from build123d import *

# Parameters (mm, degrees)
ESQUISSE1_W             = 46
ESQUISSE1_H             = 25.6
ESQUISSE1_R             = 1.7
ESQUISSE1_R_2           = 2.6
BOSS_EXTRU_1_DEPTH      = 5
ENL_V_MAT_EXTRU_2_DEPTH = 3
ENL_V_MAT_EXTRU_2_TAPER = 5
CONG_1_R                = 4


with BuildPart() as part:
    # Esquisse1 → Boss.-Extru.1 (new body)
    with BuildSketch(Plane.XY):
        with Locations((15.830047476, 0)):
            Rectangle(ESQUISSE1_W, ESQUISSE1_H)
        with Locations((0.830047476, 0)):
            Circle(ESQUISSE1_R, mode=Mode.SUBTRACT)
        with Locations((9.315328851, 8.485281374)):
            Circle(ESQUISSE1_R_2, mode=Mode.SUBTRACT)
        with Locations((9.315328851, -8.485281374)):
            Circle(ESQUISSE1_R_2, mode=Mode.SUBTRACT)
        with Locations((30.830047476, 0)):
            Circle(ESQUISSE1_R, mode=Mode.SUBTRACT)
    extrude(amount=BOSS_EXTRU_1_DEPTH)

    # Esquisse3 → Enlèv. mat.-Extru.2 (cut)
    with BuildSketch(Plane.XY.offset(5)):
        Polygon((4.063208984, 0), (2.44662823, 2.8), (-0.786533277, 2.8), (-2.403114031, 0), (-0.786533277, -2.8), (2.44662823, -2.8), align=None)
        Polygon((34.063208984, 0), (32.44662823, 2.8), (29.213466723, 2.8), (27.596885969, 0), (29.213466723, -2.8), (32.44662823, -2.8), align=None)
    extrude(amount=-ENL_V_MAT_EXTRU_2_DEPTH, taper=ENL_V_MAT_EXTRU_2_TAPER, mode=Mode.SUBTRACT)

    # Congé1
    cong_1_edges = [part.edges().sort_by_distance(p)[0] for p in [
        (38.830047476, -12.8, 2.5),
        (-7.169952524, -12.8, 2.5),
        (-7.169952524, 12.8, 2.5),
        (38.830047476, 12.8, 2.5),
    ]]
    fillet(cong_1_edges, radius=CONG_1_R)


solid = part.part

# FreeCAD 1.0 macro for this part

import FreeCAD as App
import Part
import Sketcher
from FreeCAD import Vector
Q = App.Units.Quantity


def edges_at(feature, points):
    """Names of the edges that pass closest to the given points."""
    edges = feature.Shape.Edges
    near = lambda p: min(range(len(edges)), key=lambda i: edges[i].distToShape(Part.Vertex(*p))[0])
    return sorted({f"Edge{near(p) + 1}" for p in points})

doc = App.newDocument("Part")
body = doc.addObject("PartDesign::Body", "Body")

sketch1 = body.newObject("Sketcher::SketchObject", "Sketch")
sketch1.AttachmentSupport = (doc.getObject("XY_Plane"), [""])
sketch1.MapMode = "FlatFace"
sketch1.addGeometry([
    Part.LineSegment(Vector(-7.2, 12.8, 0), Vector(-7.2, -12.8, 0)),
    Part.LineSegment(Vector(-7.2, -12.8, 0), Vector(38.8, -12.8, 0)),
    Part.LineSegment(Vector(38.8, -12.8, 0), Vector(38.8, 12.8, 0)),
    Part.LineSegment(Vector(38.8, 12.8, 0), Vector(-7.2, 12.8, 0)),
    Part.Circle(Vector(9.3, -8.5, 0), Vector(0, 0, 1), 2.6),
    Part.Circle(Vector(0.8, 0, 0), Vector(0, 0, 1), 1.7),
    Part.Circle(Vector(9.3, 8.5, 0), Vector(0, 0, 1), 2.6),
    Part.Circle(Vector(30.8, 0, 0), Vector(0, 0, 1), 1.7),
], False)
sketch1.addConstraint([
    Sketcher.Constraint("Coincident", 0, 2, 1, 1),
    Sketcher.Constraint("Coincident", 1, 2, 2, 1),
    Sketcher.Constraint("Coincident", 2, 2, 3, 1),
    Sketcher.Constraint("Coincident", 3, 2, 0, 1),
    Sketcher.Constraint("Vertical", 0),
    Sketcher.Constraint("Horizontal", 1),
    Sketcher.Constraint("Vertical", 2),
    Sketcher.Constraint("Horizontal", 3),
    Sketcher.Constraint("Equal", 4, 6),
    Sketcher.Constraint("Equal", 5, 7),
    Sketcher.Constraint("Symmetric", 4, 3, 6, 3, -1),
    Sketcher.Constraint("PointOnObject", 5, 3, -1),
    Sketcher.Constraint("PointOnObject", 7, 3, -1),
    Sketcher.Constraint("Diameter", 4, Q("5.2 mm")),
    Sketcher.Constraint("Diameter", 5, Q("3.4 mm")),
    Sketcher.Constraint("DistanceX", 1, 1, 1, 2, Q("46 mm")),
    Sketcher.Constraint("DistanceY", 0, 2, 0, 1, Q("25.6 mm")),
    Sketcher.Constraint("DistanceX", 5, 3, 7, 3, Q("30 mm")),
    Sketcher.Constraint("DistanceX", 0, 2, 5, 3, Q("8 mm")),
    Sketcher.Constraint("DistanceY", 0, 2, -1, 1, Q("12.8 mm")),
    Sketcher.Constraint("DistanceX", -1, 1, 4, 3, Q("9.315329 mm")),
    Sketcher.Constraint("DistanceY", 4, 3, -1, 1, Q("8.485281 mm")),
    Sketcher.Constraint("DistanceX", 5, 3, 4, 3, Q("8.485281 mm")),
])
pad1 = body.newObject("PartDesign::Pad", "Pad")
pad1.Profile = sketch1
pad1.Length = 5

sketch2 = body.newObject("Sketcher::SketchObject", "Sketch001")
sketch2.AttachmentSupport = (doc.getObject("XY_Plane"), [""])
sketch2.MapMode = "FlatFace"
sketch2.AttachmentOffset = App.Placement(Vector(0, 0, 5), App.Rotation())
sketch2.addGeometry([
    Part.LineSegment(Vector(4.1, 0, 0), Vector(2.4, 2.8, 0)),
    Part.LineSegment(Vector(2.4, 2.8, 0), Vector(-0.8, 2.8, 0)),
    Part.LineSegment(Vector(-0.8, 2.8, 0), Vector(-2.4, 0, 0)),
    Part.LineSegment(Vector(-2.4, 0, 0), Vector(-0.8, -2.8, 0)),
    Part.LineSegment(Vector(-0.8, -2.8, 0), Vector(2.4, -2.8, 0)),
    Part.LineSegment(Vector(2.4, -2.8, 0), Vector(4.1, 0, 0)),
    Part.LineSegment(Vector(34.1, 0, 0), Vector(32.4, 2.8, 0)),
    Part.LineSegment(Vector(32.4, 2.8, 0), Vector(29.2, 2.8, 0)),
    Part.LineSegment(Vector(29.2, 2.8, 0), Vector(27.6, 0, 0)),
    Part.LineSegment(Vector(27.6, 0, 0), Vector(29.2, -2.8, 0)),
    Part.LineSegment(Vector(29.2, -2.8, 0), Vector(32.4, -2.8, 0)),
    Part.LineSegment(Vector(32.4, -2.8, 0), Vector(34.1, 0, 0)),
], False)
sketch2.addConstraint([
    Sketcher.Constraint("Coincident", 0, 2, 1, 1),
    Sketcher.Constraint("Coincident", 1, 2, 2, 1),
    Sketcher.Constraint("Coincident", 2, 2, 3, 1),
    Sketcher.Constraint("Coincident", 3, 2, 4, 1),
    Sketcher.Constraint("Coincident", 4, 2, 5, 1),
    Sketcher.Constraint("Coincident", 5, 2, 0, 1),
    Sketcher.Constraint("Coincident", 6, 2, 7, 1),
    Sketcher.Constraint("Coincident", 7, 2, 8, 1),
    Sketcher.Constraint("Coincident", 8, 2, 9, 1),
    Sketcher.Constraint("Coincident", 9, 2, 10, 1),
    Sketcher.Constraint("Coincident", 10, 2, 11, 1),
    Sketcher.Constraint("Coincident", 11, 2, 6, 1),
    Sketcher.Constraint("Horizontal", 1),
    Sketcher.Constraint("Horizontal", 4),
    Sketcher.Constraint("Horizontal", 7),
    Sketcher.Constraint("Horizontal", 10),
    Sketcher.Constraint("Symmetric", 1, 2, 3, 2, -1),
    Sketcher.Constraint("Symmetric", 7, 2, 9, 2, -1),
    Sketcher.Constraint("PointOnObject", 2, 2, -1),
    Sketcher.Constraint("PointOnObject", 5, 2, -1),
    Sketcher.Constraint("PointOnObject", 8, 2, -1),
    Sketcher.Constraint("PointOnObject", 11, 2, -1),
    Sketcher.Constraint("Parallel", 0, 3),
    Sketcher.Constraint("Parallel", 2, 5),
    Sketcher.Constraint("Parallel", 3, 6),
    Sketcher.Constraint("Parallel", 5, 8),
    Sketcher.Constraint("Parallel", 8, 11),
    Sketcher.Constraint("Horizontal", 1, 2, 6, 2),
    Sketcher.Constraint("Equal", 4, 7),
    Sketcher.Constraint("Angle", 0, Q("120 deg")),
    Sketcher.Constraint("DistanceX", 0, 2, 6, 2, Q("30 mm")),
    Sketcher.Constraint("DistanceY", -1, 1, 0, 2, Q("2.8 mm")),
    Sketcher.Constraint("DistanceX", 1, 2, 1, 1, Q("3.233162 mm")),
    Sketcher.Constraint("DistanceX", -1, 1, 0, 2, Q("2.446628 mm")),
])
pocket1 = body.newObject("PartDesign::Pocket", "Pocket")
pocket1.Profile = sketch2
pocket1.Length = 3
pocket1.TaperAngle = -5
doc.recompute()

fillet = body.newObject("PartDesign::Fillet", "Fillet")
fillet.Base = (pocket1, edges_at(pocket1, [
    (38.83, -12.8, 2.5),
    (-7.17, -12.8, 2.5),
    (-7.17, 12.8, 2.5),
    (38.83, 12.8, 2.5),
]))
fillet.Radius = 4

doc.recompute()
